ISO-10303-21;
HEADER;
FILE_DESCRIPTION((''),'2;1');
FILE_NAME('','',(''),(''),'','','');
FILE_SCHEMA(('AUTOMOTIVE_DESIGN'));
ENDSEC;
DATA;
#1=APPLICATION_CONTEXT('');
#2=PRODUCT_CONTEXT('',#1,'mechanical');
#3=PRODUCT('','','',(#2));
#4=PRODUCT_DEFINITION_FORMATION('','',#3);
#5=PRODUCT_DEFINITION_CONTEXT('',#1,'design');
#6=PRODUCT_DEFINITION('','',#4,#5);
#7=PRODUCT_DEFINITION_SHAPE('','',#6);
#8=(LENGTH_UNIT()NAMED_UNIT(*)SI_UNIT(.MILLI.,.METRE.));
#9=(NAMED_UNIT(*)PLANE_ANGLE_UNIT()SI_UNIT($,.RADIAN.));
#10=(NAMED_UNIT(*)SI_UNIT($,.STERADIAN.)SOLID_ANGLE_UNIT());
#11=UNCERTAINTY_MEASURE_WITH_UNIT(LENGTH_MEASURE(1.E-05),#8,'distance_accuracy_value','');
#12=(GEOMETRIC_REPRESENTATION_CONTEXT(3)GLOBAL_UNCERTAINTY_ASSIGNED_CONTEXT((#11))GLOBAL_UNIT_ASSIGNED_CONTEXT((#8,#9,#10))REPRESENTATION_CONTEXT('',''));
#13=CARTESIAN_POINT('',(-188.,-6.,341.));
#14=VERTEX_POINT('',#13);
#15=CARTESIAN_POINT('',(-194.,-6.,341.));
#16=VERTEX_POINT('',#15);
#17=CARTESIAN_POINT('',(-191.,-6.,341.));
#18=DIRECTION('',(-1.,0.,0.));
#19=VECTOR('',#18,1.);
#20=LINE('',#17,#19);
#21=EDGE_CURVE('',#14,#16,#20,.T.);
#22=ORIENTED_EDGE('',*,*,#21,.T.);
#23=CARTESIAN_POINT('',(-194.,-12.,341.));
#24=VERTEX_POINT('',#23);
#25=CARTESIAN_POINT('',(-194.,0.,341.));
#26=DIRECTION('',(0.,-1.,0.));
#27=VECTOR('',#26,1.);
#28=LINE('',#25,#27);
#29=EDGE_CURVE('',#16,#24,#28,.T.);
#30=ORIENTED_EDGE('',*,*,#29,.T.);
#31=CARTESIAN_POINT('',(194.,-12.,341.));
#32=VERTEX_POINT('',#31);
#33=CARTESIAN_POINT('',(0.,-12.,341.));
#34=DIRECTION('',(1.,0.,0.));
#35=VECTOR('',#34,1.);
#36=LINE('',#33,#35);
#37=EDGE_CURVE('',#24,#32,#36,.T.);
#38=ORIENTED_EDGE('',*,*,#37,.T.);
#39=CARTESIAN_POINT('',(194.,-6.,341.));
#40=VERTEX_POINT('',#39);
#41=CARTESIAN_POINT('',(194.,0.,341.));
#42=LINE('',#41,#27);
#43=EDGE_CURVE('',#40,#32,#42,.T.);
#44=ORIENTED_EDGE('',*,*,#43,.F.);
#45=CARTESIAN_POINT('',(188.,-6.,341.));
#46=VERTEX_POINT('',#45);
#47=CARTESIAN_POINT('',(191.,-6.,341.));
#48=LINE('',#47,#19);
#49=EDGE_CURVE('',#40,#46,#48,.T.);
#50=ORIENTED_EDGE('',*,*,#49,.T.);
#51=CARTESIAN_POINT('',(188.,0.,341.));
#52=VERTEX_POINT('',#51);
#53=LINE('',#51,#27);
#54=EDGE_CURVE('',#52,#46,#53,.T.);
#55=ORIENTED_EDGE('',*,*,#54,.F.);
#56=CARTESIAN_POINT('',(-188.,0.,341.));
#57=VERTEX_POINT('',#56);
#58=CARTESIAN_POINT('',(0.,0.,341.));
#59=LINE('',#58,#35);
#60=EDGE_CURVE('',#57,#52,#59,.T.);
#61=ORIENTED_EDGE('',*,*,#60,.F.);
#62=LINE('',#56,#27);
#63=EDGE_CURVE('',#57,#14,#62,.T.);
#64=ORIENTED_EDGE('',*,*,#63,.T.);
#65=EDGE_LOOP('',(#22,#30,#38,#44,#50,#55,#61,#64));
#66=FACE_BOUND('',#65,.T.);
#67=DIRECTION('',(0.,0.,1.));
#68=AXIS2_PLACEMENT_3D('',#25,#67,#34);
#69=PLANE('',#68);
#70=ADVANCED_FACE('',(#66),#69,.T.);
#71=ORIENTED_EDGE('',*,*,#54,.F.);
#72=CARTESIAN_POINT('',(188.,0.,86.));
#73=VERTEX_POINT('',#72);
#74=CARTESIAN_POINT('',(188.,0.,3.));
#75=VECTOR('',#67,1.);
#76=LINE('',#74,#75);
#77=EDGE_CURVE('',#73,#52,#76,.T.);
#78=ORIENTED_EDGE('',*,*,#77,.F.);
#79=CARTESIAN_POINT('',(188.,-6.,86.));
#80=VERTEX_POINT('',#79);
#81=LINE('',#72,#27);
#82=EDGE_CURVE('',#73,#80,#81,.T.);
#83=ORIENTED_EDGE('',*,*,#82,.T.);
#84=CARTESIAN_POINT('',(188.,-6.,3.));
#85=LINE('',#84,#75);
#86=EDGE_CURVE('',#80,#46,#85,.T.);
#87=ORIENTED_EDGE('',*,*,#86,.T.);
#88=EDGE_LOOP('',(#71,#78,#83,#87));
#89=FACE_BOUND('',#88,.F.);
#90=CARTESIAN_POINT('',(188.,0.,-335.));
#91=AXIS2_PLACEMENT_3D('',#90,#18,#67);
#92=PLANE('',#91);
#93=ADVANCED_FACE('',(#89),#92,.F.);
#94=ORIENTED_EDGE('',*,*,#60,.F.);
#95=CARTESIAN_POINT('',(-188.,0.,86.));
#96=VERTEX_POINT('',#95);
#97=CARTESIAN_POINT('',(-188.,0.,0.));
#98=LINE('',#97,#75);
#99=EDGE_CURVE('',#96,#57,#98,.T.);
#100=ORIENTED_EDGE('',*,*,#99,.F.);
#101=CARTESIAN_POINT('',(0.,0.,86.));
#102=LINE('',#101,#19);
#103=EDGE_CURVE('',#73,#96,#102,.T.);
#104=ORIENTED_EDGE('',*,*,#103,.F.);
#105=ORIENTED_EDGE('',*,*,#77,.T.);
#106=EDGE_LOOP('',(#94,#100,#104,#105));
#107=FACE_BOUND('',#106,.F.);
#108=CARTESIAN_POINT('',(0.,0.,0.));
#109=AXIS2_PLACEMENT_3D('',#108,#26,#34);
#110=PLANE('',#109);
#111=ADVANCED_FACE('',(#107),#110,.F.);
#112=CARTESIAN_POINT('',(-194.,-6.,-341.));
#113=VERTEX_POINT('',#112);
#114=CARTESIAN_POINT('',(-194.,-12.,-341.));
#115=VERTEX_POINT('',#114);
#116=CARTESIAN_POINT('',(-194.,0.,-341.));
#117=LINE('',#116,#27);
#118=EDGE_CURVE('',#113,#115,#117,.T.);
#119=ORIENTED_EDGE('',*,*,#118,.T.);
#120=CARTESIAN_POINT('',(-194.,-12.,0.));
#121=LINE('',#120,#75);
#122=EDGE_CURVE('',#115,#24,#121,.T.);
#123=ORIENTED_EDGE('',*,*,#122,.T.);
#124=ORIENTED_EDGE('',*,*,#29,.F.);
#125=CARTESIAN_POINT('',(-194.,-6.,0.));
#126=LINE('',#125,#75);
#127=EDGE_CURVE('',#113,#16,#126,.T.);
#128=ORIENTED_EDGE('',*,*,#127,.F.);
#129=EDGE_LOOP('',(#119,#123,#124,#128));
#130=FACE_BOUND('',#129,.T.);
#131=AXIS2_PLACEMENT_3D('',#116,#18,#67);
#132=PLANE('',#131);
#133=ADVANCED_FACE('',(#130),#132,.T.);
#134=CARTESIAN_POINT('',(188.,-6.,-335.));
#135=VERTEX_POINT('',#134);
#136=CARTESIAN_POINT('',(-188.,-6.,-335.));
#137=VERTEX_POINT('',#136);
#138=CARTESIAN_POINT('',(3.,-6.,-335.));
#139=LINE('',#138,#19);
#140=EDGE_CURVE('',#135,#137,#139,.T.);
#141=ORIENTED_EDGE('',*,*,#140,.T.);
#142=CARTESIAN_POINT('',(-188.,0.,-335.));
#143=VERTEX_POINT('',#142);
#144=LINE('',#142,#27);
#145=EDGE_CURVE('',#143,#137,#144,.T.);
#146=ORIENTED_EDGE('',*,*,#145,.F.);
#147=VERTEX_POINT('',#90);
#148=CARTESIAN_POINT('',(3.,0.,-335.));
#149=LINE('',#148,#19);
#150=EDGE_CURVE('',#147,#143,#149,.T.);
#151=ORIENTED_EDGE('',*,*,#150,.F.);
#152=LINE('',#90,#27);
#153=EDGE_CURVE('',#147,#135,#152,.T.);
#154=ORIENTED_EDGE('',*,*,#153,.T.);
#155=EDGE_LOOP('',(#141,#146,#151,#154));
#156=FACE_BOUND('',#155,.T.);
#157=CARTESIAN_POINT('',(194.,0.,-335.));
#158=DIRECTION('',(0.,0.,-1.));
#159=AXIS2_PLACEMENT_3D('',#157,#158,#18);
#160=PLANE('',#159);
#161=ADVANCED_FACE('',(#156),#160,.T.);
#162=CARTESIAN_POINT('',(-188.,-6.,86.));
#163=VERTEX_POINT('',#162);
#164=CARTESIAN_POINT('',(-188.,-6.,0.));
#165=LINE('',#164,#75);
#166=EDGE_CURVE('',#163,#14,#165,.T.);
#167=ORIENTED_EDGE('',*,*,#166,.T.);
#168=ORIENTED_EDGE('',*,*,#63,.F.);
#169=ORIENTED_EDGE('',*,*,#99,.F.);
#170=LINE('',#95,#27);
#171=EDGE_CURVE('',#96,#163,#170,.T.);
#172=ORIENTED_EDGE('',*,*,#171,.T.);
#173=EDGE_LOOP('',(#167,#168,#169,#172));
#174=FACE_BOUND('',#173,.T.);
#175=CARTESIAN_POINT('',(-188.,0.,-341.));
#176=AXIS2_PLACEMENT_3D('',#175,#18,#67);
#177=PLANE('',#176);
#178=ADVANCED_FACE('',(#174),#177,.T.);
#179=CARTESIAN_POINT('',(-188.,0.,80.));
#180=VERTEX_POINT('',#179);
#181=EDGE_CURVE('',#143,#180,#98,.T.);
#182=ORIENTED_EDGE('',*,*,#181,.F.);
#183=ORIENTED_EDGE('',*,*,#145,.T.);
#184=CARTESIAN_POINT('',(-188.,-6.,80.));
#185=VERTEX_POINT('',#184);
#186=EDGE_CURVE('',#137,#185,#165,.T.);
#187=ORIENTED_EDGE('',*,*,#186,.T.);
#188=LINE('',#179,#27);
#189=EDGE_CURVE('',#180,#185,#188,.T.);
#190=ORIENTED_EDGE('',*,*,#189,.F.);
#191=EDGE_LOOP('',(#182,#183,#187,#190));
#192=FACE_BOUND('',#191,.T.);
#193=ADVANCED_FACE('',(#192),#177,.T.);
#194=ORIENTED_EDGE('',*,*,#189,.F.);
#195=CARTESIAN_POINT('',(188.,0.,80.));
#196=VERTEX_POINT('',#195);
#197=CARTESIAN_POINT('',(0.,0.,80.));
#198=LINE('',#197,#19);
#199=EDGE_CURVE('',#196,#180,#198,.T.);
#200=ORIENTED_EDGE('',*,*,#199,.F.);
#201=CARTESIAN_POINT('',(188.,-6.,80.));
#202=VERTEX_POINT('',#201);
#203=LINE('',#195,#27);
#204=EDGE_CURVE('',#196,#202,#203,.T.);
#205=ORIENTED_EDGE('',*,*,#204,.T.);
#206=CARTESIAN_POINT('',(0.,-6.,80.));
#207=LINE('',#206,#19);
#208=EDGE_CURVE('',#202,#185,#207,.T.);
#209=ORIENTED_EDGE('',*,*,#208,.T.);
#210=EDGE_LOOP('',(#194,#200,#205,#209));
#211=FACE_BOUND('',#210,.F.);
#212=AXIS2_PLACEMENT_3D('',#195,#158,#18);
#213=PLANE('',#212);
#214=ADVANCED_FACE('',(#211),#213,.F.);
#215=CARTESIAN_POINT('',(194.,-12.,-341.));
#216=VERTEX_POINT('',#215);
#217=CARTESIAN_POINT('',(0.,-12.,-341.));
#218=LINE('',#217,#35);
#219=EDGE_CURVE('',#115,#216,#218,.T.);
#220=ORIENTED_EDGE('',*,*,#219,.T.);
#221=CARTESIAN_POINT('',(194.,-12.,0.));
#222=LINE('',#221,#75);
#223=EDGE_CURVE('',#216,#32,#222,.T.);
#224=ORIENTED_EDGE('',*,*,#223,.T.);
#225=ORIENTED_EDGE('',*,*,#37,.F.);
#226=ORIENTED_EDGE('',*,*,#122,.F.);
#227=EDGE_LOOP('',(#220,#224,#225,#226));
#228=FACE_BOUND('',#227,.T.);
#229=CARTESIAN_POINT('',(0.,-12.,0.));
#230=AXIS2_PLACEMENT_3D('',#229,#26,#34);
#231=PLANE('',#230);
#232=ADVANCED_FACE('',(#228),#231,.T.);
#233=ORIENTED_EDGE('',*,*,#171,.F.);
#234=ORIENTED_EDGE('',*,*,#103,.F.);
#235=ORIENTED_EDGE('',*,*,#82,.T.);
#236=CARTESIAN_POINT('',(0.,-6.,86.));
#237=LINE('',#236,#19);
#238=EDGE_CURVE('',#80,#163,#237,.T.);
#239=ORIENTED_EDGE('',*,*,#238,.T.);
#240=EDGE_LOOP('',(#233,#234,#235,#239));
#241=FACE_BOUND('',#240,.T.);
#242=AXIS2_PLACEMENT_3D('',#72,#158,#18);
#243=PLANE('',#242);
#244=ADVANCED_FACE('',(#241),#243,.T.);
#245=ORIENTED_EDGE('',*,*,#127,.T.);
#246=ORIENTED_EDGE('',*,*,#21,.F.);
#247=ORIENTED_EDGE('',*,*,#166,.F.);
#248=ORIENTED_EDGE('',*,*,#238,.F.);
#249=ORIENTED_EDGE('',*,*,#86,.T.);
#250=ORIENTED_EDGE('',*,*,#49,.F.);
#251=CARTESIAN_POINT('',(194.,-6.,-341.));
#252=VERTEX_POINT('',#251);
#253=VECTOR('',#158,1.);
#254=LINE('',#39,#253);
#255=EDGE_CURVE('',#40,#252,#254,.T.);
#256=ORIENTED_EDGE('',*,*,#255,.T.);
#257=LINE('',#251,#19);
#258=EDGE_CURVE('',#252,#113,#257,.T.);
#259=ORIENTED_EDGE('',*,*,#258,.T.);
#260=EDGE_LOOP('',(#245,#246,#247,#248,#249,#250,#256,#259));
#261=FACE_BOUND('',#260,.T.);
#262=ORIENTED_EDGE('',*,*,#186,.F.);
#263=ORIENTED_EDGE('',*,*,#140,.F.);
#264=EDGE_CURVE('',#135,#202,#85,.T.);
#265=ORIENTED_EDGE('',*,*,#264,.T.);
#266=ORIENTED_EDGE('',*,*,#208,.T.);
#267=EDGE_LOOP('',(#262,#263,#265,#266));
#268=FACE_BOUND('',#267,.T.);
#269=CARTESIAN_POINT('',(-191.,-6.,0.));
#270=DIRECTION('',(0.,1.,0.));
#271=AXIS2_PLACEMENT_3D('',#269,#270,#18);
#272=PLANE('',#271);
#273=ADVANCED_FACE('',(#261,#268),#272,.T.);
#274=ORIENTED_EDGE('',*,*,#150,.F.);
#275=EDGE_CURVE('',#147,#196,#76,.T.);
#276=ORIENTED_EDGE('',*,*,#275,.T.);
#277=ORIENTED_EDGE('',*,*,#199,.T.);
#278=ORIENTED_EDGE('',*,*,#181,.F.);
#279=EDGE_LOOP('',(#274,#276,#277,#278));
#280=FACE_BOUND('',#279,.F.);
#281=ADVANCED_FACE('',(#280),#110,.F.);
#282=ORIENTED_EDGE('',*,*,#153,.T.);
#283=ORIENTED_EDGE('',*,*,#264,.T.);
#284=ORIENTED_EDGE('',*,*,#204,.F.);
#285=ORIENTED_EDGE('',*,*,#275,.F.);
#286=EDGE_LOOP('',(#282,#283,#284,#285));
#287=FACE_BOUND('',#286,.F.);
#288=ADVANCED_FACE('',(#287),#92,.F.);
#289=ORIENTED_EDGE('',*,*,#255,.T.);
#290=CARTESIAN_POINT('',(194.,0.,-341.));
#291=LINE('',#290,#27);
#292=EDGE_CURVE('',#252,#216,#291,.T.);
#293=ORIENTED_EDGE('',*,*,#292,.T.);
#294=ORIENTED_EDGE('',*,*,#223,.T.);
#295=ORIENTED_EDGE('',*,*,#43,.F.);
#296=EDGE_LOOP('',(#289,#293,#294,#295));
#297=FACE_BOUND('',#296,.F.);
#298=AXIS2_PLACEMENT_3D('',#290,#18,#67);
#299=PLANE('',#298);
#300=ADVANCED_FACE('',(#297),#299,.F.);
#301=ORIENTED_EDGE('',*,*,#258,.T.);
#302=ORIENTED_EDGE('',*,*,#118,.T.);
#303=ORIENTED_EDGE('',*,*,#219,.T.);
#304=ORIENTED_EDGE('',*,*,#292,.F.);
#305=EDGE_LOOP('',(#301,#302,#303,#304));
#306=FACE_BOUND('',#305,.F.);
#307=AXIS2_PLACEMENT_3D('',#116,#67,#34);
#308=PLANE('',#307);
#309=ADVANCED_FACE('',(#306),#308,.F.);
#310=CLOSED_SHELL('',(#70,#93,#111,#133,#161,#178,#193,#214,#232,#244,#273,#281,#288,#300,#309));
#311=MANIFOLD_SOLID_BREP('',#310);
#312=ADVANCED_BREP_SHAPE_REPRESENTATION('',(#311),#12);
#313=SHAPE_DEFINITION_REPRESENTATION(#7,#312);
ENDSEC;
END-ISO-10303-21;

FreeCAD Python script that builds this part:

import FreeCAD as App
import Part
import Sketcher


def add_polygon(sketch, points):
    """Adds a closed chain of lines whose ends are joined by coincident constraints."""
    first, n = sketch.GeometryCount, len(points)
    for a, b in zip(points, points[1:] + points[:1]):
        sketch.addGeometry(Part.LineSegment(App.Vector(*a, 0), App.Vector(*b, 0)), False)
    for i in range(n):
        sketch.addConstraint(Sketcher.Constraint("Coincident", first + i, 2, first + (i + 1) % n, 1))

doc = App.newDocument("Part")
body = doc.addObject("PartDesign::Body", "Body")

sketch1 = body.newObject("Sketcher::SketchObject", "Sketch")
sketch1.AttachmentSupport = (doc.getObject("XZ_Plane"), [""])
sketch1.MapMode = "FlatFace"
add_polygon(sketch1, [(-194, 341), (-194, -341), (194, -341), (194, 341)])
sketch1.addConstraint([
    Sketcher.Constraint("Vertical", 0),
    Sketcher.Constraint("Horizontal", 1),
    Sketcher.Constraint("Vertical", 2),
    Sketcher.Constraint("Horizontal", 3),
    Sketcher.Constraint("Symmetric", 0, 2, 2, 2, -1, 1),
    Sketcher.Constraint("DistanceX", 1, 1, 1, 2, 388.0),
    Sketcher.Constraint("DistanceY", 0, 2, 0, 1, 682.0),
])
pad1 = body.newObject("PartDesign::Pad", "Pad")
pad1.Profile = sketch1
pad1.Length = 12

sketch2 = body.newObject("Sketcher::SketchObject", "Sketch001")
sketch2.AttachmentSupport = (doc.getObject("XZ_Plane"), [""])
sketch2.MapMode = "FlatFace"
add_polygon(sketch2, [(-188, 341), (-188, -341), (-194, -341), (-194, 341)])
sketch2.addConstraint([
    Sketcher.Constraint("Vertical", 0),
    Sketcher.Constraint("Horizontal", 1),
    Sketcher.Constraint("Vertical", 2),
    Sketcher.Constraint("Horizontal", 3),
    Sketcher.Constraint("DistanceX", 1, 2, 1, 1, 6.0),
    Sketcher.Constraint("DistanceY", 0, 2, 0, 1, 682.0),
    Sketcher.Constraint("DistanceX", 0, 2, -1, 1, 188.0),
    Sketcher.Constraint("DistanceY", 0, 2, -1, 1, 341.0),
])
pocket1 = body.newObject("PartDesign::Pocket", "Pocket")
pocket1.Profile = sketch2
pocket1.Length = 6
pocket1.Reversed = True

sketch3 = body.newObject("Sketcher::SketchObject", "Sketch002")
sketch3.AttachmentSupport = (doc.getObject("XZ_Plane"), [""])
sketch3.MapMode = "FlatFace"
add_polygon(sketch3, [(194, -335), (194, -341), (-188, -341), (-188, -335)])
sketch3.addConstraint([
    Sketcher.Constraint("Vertical", 0),
    Sketcher.Constraint("Horizontal", 1),
    Sketcher.Constraint("Vertical", 2),
    Sketcher.Constraint("Horizontal", 3),
    Sketcher.Constraint("DistanceX", 1, 2, 1, 1, 382.0),
    Sketcher.Constraint("DistanceY", 0, 2, 0, 1, 6.0),
    Sketcher.Constraint("DistanceX", -1, 1, 0, 2, 194.0),
    Sketcher.Constraint("DistanceY", 0, 2, -1, 1, 341.0),
])
pocket2 = body.newObject("PartDesign::Pocket", "Pocket001")
pocket2.Profile = sketch3
pocket2.Length = 6
pocket2.Reversed = True

sketch4 = body.newObject("Sketcher::SketchObject", "Sketch003")
sketch4.AttachmentSupport = (doc.getObject("XZ_Plane"), [""])
sketch4.MapMode = "FlatFace"
add_polygon(sketch4, [(194, 341), (194, -335), (188, -335), (188, 341)])
sketch4.addConstraint([
    Sketcher.Constraint("Vertical", 0),
    Sketcher.Constraint("Horizontal", 1),
    Sketcher.Constraint("Vertical", 2),
    Sketcher.Constraint("Horizontal", 3),
    Sketcher.Constraint("DistanceX", 1, 2, 1, 1, 6.0),
    Sketcher.Constraint("DistanceY", 0, 2, 0, 1, 676.0),
    Sketcher.Constraint("DistanceX", -1, 1, 0, 2, 194.0),
    Sketcher.Constraint("DistanceY", 0, 2, -1, 1, 335.0),
])
pocket3 = body.newObject("PartDesign::Pocket", "Pocket002")
pocket3.Profile = sketch4
pocket3.Length = 6
pocket3.Reversed = True

sketch5 = body.newObject("Sketcher::SketchObject", "Sketch004")
sketch5.AttachmentSupport = (doc.getObject("XZ_Plane"), [""])
sketch5.MapMode = "FlatFace"
add_polygon(sketch5, [(188, 86), (188, 80), (-188, 80), (-188, 86)])
sketch5.addConstraint([
    Sketcher.Constraint("Vertical", 0),
    Sketcher.Constraint("Horizontal", 1),
    Sketcher.Constraint("Vertical", 2),
    Sketcher.Constraint("Horizontal", 3),
    Sketcher.Constraint("DistanceX", 1, 2, 1, 1, 376.0),
    Sketcher.Constraint("DistanceY", 0, 2, 0, 1, 6.0),
    Sketcher.Constraint("DistanceX", -1, 1, 0, 2, 188.0),
    Sketcher.Constraint("DistanceY", -1, 1, 0, 2, 80.0),
])
pocket4 = body.newObject("PartDesign::Pocket", "Pocket003")
pocket4.Profile = sketch5
pocket4.Length = 6
pocket4.Reversed = True

doc.recompute()
